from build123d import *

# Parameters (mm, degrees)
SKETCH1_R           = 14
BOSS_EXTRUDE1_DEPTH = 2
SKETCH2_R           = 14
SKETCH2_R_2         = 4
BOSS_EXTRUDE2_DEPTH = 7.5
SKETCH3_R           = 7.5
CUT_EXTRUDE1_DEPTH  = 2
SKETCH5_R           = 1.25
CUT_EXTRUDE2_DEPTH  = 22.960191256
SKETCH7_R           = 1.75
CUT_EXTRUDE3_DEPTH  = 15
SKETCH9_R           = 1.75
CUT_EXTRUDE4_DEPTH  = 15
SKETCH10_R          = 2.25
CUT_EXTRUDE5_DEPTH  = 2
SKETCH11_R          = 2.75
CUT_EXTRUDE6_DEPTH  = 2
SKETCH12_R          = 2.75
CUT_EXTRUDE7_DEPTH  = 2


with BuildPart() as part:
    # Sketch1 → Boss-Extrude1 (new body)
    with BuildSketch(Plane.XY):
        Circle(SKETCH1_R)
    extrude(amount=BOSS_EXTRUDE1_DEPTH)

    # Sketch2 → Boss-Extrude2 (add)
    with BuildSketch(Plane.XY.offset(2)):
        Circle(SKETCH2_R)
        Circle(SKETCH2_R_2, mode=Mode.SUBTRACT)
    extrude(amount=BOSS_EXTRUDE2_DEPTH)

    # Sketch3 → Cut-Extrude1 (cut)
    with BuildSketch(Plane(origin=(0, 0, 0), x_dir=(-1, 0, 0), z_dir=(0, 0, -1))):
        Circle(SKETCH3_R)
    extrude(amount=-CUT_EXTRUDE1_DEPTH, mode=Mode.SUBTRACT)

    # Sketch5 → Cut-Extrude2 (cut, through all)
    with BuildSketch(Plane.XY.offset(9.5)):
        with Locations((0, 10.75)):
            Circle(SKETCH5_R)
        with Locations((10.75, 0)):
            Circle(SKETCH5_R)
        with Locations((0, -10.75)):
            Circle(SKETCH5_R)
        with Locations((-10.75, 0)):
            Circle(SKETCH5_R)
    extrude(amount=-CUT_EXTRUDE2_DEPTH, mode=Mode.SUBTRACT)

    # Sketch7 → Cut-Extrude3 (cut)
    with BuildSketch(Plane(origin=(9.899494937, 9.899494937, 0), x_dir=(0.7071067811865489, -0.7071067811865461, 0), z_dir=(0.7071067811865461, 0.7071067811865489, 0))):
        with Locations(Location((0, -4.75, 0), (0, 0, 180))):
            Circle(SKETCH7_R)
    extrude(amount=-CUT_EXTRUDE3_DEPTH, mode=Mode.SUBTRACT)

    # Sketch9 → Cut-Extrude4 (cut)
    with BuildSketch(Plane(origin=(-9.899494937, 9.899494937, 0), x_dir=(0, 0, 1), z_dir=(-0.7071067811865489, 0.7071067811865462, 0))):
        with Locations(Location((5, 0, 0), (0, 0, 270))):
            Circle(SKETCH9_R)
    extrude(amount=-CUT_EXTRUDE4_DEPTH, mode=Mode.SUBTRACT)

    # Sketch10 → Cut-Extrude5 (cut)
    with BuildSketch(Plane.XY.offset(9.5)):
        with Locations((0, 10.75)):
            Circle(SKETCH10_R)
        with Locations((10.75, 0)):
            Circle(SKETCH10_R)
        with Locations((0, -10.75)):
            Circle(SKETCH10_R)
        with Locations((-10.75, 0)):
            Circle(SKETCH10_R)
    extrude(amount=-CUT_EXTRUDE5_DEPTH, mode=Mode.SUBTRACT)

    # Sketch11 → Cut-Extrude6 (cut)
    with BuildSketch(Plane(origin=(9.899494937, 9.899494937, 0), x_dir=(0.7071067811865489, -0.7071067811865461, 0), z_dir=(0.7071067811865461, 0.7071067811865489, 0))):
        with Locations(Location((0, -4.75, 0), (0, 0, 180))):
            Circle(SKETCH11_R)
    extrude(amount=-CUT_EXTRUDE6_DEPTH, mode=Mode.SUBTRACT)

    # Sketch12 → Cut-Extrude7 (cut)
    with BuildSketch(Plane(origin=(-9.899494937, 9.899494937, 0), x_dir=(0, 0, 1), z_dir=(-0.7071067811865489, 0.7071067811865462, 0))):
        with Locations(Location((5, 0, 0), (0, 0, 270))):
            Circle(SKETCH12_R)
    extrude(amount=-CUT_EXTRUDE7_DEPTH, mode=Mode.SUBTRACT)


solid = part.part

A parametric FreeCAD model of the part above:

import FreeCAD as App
import Part
import Sketcher
Q = App.Units.Quantity

doc = App.newDocument("Part")
body = doc.addObject("PartDesign::Body", "Body")

sketch1 = doc.addObject("Sketcher::SketchObject", "Sketch")
body.addObject(sketch1)
sketch1.AttachmentSupport = (doc.XY_Plane, [""])
sketch1.MapMode = "FlatFace"
sketch1.addGeometry(Part.Circle(App.Vector(0, 0, 0), App.Vector(0, 0, 1), 14), False)
sketch1.addConstraint([
    Sketcher.Constraint("Coincident", 0, 3, -1, 1),
    Sketcher.Constraint("Diameter", 0, Q("28 mm")),
])
pad1 = doc.addObject("PartDesign::Pad", "Pad")
body.addObject(pad1)
pad1.Profile = sketch1
pad1.Length = 2

sketch2 = doc.addObject("Sketcher::SketchObject", "Sketch001")
body.addObject(sketch2)
sketch2.AttachmentSupport = (doc.XY_Plane, [""])
sketch2.MapMode = "FlatFace"
sketch2.AttachmentOffset = App.Placement(App.Vector(0, 0, 2), App.Rotation())
sketch2.addGeometry([
    Part.Circle(App.Vector(0, 0, 0), App.Vector(0, 0, 1), 14),
    Part.Circle(App.Vector(0, 0, 0), App.Vector(0, 0, 1), 4),
], False)
sketch2.addConstraint([
    Sketcher.Constraint("Coincident", 0, 3, -1, 1),
    Sketcher.Constraint("Coincident", 1, 3, -1, 1),
    Sketcher.Constraint("Diameter", 0, Q("28 mm")),
    Sketcher.Constraint("Diameter", 1, Q("8 mm")),
])
pad2 = doc.addObject("PartDesign::Pad", "Pad001")
body.addObject(pad2)
pad2.Profile = sketch2
pad2.Length = 7.5

sketch3 = doc.addObject("Sketcher::SketchObject", "Sketch002")
body.addObject(sketch3)
sketch3.AttachmentSupport = (doc.XY_Plane, [""])
sketch3.MapMode = "FlatFace"
sketch3.addGeometry(Part.Circle(App.Vector(0, 0, 0), App.Vector(0, 0, 1), 8), False)
sketch3.addConstraint([
    Sketcher.Constraint("Coincident", 0, 3, -1, 1),
    Sketcher.Constraint("Diameter", 0, Q("15 mm")),
])
pocket1 = doc.addObject("PartDesign::Pocket", "Pocket")
body.addObject(pocket1)
pocket1.Profile = sketch3
pocket1.Length = 2
pocket1.Reversed = True

sketch4 = doc.addObject("Sketcher::SketchObject", "Sketch003")
body.addObject(sketch4)
sketch4.AttachmentSupport = (doc.XY_Plane, [""])
sketch4.MapMode = "FlatFace"
sketch4.AttachmentOffset = App.Placement(App.Vector(0, 0, 9.5), App.Rotation())
sketch4.addGeometry([
    Part.Circle(App.Vector(0, 10.8, 0), App.Vector(0, 0, 1), 1.2),
    Part.Circle(App.Vector(10.8, 0, 0), App.Vector(0, 0, 1), 1.2),
    Part.Circle(App.Vector(0, -10.8, 0), App.Vector(0, 0, 1), 1.2),
    Part.Circle(App.Vector(-10.8, 0, 0), App.Vector(0, 0, 1), 1.2),
], False)
sketch4.addConstraint([
    Sketcher.Constraint("Equal", 0, 1),
    Sketcher.Constraint("Equal", 1, 2),
    Sketcher.Constraint("Equal", 2, 3),
    Sketcher.Constraint("Symmetric", 0, 3, 2, 3, -1, 1),
    Sketcher.Constraint("Symmetric", 1, 3, 3, 3, -1, 1),
    Sketcher.Constraint("PointOnObject", 0, 3, -2),
    Sketcher.Constraint("PointOnObject", 1, 3, -1),
    Sketcher.Constraint("Diameter", 0, Q("2.5 mm")),
    Sketcher.Constraint("DistanceY", 2, 3, 0, 3, Q("21.5 mm")),
    Sketcher.Constraint("DistanceX", 3, 3, 1, 3, Q("21.5 mm")),
])
pocket2 = doc.addObject("PartDesign::Pocket", "Pocket001")
body.addObject(pocket2)
pocket2.Profile = sketch4
pocket2.Type = "ThroughAll"

sketch5 = doc.addObject("Sketcher::SketchObject", "Sketch004")
body.addObject(sketch5)
sketch5.Placement = App.Placement(App.Vector(9.899495, 9.899495, 0), App.Rotation(App.Vector(0.707106781, -0.707106781, 0), App.Vector(0, 0, -0.999999999), App.Vector(0.707106781, 0.707106781, 0), "ZXY"))
sketch5.addGeometry(Part.Circle(App.Vector(0, -4.7, 0), App.Vector(0, 0, 1), 1.8), False)
sketch5.addConstraint([
    Sketcher.Constraint("PointOnObject", 0, 3, -2),
    Sketcher.Constraint("Diameter", 0, Q("3.5 mm")),
    Sketcher.Constraint("DistanceY", 0, 3, -1, 1, Q("4.75 mm")),
])
pocket3 = doc.addObject("PartDesign::Pocket", "Pocket002")
body.addObject(pocket3)
pocket3.Profile = sketch5
pocket3.Length = 15

sketch6 = doc.addObject("Sketcher::SketchObject", "Sketch005")
body.addObject(sketch6)
sketch6.Placement = App.Placement(App.Vector(-9.899495, 9.899495, 0), App.Rotation(App.Vector(0, 0, 1), App.Vector(0.707106781, 0.707106781, 0), App.Vector(-0.707106781, 0.707106781, 0), "ZXY"))
sketch6.addGeometry(Part.Circle(App.Vector(5, 0, 0), App.Vector(0, 0, 1), 1.8), False)
sketch6.addConstraint([
    Sketcher.Constraint("PointOnObject", 0, 3, -1),
    Sketcher.Constraint("Diameter", 0, Q("3.5 mm")),
    Sketcher.Constraint("DistanceX", -1, 1, 0, 3, Q("5 mm")),
])
pocket4 = doc.addObject("PartDesign::Pocket", "Pocket003")
body.addObject(pocket4)
pocket4.Profile = sketch6
pocket4.Length = 15

sketch7 = doc.addObject("Sketcher::SketchObject", "Sketch006")
body.addObject(sketch7)
sketch7.AttachmentSupport = (doc.XY_Plane, [""])
sketch7.MapMode = "FlatFace"
sketch7.AttachmentOffset = App.Placement(App.Vector(0, 0, 9.5), App.Rotation())
sketch7.addGeometry([
    Part.Circle(App.Vector(0, 10.8, 0), App.Vector(0, 0, 1), 2.2),
    Part.Circle(App.Vector(10.8, 0, 0), App.Vector(0, 0, 1), 2.2),
    Part.Circle(App.Vector(0, -10.8, 0), App.Vector(0, 0, 1), 2.2),
    Part.Circle(App.Vector(-10.8, 0, 0), App.Vector(0, 0, 1), 2.2),
], False)
sketch7.addConstraint([
    Sketcher.Constraint("Equal", 0, 1),
    Sketcher.Constraint("Equal", 1, 2),
    Sketcher.Constraint("Equal", 2, 3),
    Sketcher.Constraint("Symmetric", 0, 3, 2, 3, -1, 1),
    Sketcher.Constraint("Symmetric", 1, 3, 3, 3, -1, 1),
    Sketcher.Constraint("PointOnObject", 0, 3, -2),
    Sketcher.Constraint("PointOnObject", 1, 3, -1),
    Sketcher.Constraint("Diameter", 0, Q("4.5 mm")),
    Sketcher.Constraint("DistanceY", 2, 3, 0, 3, Q("21.5 mm")),
    Sketcher.Constraint("DistanceX", 3, 3, 1, 3, Q("21.5 mm")),
])
pocket5 = doc.addObject("PartDesign::Pocket", "Pocket004")
body.addObject(pocket5)
pocket5.Profile = sketch7
pocket5.Length = 2

sketch8 = doc.addObject("Sketcher::SketchObject", "Sketch007")
body.addObject(sketch8)
sketch8.Placement = App.Placement(App.Vector(9.899495, 9.899495, 0), App.Rotation(App.Vector(0.707106781, -0.707106781, 0), App.Vector(0, 0, -0.999999999), App.Vector(0.707106781, 0.707106781, 0), "ZXY"))
sketch8.addGeometry(Part.Circle(App.Vector(0, -4.7, 0), App.Vector(0, 0, 1), 2.8), False)
sketch8.addConstraint([
    Sketcher.Constraint("PointOnObject", 0, 3, -2),
    Sketcher.Constraint("Diameter", 0, Q("5.5 mm")),
    Sketcher.Constraint("DistanceY", 0, 3, -1, 1, Q("4.75 mm")),
])
pocket6 = doc.addObject("PartDesign::Pocket", "Pocket005")
body.addObject(pocket6)
pocket6.Profile = sketch8
pocket6.Length = 2

sketch9 = doc.addObject("Sketcher::SketchObject", "Sketch008")
body.addObject(sketch9)
sketch9.Placement = App.Placement(App.Vector(-9.899495, 9.899495, 0), App.Rotation(App.Vector(0, 0, 1), App.Vector(0.707106781, 0.707106781, 0), App.Vector(-0.707106781, 0.707106781, 0), "ZXY"))
sketch9.addGeometry(Part.Circle(App.Vector(5, 0, 0), App.Vector(0, 0, 1), 2.8), False)
sketch9.addConstraint([
    Sketcher.Constraint("PointOnObject", 0, 3, -1),
    Sketcher.Constraint("Diameter", 0, Q("5.5 mm")),
    Sketcher.Constraint("DistanceX", -1, 1, 0, 3, Q("5 mm")),
])
pocket7 = doc.addObject("PartDesign::Pocket", "Pocket006")
body.addObject(pocket7)
pocket7.Profile = sketch9
pocket7.Length = 2

doc.recompute()
